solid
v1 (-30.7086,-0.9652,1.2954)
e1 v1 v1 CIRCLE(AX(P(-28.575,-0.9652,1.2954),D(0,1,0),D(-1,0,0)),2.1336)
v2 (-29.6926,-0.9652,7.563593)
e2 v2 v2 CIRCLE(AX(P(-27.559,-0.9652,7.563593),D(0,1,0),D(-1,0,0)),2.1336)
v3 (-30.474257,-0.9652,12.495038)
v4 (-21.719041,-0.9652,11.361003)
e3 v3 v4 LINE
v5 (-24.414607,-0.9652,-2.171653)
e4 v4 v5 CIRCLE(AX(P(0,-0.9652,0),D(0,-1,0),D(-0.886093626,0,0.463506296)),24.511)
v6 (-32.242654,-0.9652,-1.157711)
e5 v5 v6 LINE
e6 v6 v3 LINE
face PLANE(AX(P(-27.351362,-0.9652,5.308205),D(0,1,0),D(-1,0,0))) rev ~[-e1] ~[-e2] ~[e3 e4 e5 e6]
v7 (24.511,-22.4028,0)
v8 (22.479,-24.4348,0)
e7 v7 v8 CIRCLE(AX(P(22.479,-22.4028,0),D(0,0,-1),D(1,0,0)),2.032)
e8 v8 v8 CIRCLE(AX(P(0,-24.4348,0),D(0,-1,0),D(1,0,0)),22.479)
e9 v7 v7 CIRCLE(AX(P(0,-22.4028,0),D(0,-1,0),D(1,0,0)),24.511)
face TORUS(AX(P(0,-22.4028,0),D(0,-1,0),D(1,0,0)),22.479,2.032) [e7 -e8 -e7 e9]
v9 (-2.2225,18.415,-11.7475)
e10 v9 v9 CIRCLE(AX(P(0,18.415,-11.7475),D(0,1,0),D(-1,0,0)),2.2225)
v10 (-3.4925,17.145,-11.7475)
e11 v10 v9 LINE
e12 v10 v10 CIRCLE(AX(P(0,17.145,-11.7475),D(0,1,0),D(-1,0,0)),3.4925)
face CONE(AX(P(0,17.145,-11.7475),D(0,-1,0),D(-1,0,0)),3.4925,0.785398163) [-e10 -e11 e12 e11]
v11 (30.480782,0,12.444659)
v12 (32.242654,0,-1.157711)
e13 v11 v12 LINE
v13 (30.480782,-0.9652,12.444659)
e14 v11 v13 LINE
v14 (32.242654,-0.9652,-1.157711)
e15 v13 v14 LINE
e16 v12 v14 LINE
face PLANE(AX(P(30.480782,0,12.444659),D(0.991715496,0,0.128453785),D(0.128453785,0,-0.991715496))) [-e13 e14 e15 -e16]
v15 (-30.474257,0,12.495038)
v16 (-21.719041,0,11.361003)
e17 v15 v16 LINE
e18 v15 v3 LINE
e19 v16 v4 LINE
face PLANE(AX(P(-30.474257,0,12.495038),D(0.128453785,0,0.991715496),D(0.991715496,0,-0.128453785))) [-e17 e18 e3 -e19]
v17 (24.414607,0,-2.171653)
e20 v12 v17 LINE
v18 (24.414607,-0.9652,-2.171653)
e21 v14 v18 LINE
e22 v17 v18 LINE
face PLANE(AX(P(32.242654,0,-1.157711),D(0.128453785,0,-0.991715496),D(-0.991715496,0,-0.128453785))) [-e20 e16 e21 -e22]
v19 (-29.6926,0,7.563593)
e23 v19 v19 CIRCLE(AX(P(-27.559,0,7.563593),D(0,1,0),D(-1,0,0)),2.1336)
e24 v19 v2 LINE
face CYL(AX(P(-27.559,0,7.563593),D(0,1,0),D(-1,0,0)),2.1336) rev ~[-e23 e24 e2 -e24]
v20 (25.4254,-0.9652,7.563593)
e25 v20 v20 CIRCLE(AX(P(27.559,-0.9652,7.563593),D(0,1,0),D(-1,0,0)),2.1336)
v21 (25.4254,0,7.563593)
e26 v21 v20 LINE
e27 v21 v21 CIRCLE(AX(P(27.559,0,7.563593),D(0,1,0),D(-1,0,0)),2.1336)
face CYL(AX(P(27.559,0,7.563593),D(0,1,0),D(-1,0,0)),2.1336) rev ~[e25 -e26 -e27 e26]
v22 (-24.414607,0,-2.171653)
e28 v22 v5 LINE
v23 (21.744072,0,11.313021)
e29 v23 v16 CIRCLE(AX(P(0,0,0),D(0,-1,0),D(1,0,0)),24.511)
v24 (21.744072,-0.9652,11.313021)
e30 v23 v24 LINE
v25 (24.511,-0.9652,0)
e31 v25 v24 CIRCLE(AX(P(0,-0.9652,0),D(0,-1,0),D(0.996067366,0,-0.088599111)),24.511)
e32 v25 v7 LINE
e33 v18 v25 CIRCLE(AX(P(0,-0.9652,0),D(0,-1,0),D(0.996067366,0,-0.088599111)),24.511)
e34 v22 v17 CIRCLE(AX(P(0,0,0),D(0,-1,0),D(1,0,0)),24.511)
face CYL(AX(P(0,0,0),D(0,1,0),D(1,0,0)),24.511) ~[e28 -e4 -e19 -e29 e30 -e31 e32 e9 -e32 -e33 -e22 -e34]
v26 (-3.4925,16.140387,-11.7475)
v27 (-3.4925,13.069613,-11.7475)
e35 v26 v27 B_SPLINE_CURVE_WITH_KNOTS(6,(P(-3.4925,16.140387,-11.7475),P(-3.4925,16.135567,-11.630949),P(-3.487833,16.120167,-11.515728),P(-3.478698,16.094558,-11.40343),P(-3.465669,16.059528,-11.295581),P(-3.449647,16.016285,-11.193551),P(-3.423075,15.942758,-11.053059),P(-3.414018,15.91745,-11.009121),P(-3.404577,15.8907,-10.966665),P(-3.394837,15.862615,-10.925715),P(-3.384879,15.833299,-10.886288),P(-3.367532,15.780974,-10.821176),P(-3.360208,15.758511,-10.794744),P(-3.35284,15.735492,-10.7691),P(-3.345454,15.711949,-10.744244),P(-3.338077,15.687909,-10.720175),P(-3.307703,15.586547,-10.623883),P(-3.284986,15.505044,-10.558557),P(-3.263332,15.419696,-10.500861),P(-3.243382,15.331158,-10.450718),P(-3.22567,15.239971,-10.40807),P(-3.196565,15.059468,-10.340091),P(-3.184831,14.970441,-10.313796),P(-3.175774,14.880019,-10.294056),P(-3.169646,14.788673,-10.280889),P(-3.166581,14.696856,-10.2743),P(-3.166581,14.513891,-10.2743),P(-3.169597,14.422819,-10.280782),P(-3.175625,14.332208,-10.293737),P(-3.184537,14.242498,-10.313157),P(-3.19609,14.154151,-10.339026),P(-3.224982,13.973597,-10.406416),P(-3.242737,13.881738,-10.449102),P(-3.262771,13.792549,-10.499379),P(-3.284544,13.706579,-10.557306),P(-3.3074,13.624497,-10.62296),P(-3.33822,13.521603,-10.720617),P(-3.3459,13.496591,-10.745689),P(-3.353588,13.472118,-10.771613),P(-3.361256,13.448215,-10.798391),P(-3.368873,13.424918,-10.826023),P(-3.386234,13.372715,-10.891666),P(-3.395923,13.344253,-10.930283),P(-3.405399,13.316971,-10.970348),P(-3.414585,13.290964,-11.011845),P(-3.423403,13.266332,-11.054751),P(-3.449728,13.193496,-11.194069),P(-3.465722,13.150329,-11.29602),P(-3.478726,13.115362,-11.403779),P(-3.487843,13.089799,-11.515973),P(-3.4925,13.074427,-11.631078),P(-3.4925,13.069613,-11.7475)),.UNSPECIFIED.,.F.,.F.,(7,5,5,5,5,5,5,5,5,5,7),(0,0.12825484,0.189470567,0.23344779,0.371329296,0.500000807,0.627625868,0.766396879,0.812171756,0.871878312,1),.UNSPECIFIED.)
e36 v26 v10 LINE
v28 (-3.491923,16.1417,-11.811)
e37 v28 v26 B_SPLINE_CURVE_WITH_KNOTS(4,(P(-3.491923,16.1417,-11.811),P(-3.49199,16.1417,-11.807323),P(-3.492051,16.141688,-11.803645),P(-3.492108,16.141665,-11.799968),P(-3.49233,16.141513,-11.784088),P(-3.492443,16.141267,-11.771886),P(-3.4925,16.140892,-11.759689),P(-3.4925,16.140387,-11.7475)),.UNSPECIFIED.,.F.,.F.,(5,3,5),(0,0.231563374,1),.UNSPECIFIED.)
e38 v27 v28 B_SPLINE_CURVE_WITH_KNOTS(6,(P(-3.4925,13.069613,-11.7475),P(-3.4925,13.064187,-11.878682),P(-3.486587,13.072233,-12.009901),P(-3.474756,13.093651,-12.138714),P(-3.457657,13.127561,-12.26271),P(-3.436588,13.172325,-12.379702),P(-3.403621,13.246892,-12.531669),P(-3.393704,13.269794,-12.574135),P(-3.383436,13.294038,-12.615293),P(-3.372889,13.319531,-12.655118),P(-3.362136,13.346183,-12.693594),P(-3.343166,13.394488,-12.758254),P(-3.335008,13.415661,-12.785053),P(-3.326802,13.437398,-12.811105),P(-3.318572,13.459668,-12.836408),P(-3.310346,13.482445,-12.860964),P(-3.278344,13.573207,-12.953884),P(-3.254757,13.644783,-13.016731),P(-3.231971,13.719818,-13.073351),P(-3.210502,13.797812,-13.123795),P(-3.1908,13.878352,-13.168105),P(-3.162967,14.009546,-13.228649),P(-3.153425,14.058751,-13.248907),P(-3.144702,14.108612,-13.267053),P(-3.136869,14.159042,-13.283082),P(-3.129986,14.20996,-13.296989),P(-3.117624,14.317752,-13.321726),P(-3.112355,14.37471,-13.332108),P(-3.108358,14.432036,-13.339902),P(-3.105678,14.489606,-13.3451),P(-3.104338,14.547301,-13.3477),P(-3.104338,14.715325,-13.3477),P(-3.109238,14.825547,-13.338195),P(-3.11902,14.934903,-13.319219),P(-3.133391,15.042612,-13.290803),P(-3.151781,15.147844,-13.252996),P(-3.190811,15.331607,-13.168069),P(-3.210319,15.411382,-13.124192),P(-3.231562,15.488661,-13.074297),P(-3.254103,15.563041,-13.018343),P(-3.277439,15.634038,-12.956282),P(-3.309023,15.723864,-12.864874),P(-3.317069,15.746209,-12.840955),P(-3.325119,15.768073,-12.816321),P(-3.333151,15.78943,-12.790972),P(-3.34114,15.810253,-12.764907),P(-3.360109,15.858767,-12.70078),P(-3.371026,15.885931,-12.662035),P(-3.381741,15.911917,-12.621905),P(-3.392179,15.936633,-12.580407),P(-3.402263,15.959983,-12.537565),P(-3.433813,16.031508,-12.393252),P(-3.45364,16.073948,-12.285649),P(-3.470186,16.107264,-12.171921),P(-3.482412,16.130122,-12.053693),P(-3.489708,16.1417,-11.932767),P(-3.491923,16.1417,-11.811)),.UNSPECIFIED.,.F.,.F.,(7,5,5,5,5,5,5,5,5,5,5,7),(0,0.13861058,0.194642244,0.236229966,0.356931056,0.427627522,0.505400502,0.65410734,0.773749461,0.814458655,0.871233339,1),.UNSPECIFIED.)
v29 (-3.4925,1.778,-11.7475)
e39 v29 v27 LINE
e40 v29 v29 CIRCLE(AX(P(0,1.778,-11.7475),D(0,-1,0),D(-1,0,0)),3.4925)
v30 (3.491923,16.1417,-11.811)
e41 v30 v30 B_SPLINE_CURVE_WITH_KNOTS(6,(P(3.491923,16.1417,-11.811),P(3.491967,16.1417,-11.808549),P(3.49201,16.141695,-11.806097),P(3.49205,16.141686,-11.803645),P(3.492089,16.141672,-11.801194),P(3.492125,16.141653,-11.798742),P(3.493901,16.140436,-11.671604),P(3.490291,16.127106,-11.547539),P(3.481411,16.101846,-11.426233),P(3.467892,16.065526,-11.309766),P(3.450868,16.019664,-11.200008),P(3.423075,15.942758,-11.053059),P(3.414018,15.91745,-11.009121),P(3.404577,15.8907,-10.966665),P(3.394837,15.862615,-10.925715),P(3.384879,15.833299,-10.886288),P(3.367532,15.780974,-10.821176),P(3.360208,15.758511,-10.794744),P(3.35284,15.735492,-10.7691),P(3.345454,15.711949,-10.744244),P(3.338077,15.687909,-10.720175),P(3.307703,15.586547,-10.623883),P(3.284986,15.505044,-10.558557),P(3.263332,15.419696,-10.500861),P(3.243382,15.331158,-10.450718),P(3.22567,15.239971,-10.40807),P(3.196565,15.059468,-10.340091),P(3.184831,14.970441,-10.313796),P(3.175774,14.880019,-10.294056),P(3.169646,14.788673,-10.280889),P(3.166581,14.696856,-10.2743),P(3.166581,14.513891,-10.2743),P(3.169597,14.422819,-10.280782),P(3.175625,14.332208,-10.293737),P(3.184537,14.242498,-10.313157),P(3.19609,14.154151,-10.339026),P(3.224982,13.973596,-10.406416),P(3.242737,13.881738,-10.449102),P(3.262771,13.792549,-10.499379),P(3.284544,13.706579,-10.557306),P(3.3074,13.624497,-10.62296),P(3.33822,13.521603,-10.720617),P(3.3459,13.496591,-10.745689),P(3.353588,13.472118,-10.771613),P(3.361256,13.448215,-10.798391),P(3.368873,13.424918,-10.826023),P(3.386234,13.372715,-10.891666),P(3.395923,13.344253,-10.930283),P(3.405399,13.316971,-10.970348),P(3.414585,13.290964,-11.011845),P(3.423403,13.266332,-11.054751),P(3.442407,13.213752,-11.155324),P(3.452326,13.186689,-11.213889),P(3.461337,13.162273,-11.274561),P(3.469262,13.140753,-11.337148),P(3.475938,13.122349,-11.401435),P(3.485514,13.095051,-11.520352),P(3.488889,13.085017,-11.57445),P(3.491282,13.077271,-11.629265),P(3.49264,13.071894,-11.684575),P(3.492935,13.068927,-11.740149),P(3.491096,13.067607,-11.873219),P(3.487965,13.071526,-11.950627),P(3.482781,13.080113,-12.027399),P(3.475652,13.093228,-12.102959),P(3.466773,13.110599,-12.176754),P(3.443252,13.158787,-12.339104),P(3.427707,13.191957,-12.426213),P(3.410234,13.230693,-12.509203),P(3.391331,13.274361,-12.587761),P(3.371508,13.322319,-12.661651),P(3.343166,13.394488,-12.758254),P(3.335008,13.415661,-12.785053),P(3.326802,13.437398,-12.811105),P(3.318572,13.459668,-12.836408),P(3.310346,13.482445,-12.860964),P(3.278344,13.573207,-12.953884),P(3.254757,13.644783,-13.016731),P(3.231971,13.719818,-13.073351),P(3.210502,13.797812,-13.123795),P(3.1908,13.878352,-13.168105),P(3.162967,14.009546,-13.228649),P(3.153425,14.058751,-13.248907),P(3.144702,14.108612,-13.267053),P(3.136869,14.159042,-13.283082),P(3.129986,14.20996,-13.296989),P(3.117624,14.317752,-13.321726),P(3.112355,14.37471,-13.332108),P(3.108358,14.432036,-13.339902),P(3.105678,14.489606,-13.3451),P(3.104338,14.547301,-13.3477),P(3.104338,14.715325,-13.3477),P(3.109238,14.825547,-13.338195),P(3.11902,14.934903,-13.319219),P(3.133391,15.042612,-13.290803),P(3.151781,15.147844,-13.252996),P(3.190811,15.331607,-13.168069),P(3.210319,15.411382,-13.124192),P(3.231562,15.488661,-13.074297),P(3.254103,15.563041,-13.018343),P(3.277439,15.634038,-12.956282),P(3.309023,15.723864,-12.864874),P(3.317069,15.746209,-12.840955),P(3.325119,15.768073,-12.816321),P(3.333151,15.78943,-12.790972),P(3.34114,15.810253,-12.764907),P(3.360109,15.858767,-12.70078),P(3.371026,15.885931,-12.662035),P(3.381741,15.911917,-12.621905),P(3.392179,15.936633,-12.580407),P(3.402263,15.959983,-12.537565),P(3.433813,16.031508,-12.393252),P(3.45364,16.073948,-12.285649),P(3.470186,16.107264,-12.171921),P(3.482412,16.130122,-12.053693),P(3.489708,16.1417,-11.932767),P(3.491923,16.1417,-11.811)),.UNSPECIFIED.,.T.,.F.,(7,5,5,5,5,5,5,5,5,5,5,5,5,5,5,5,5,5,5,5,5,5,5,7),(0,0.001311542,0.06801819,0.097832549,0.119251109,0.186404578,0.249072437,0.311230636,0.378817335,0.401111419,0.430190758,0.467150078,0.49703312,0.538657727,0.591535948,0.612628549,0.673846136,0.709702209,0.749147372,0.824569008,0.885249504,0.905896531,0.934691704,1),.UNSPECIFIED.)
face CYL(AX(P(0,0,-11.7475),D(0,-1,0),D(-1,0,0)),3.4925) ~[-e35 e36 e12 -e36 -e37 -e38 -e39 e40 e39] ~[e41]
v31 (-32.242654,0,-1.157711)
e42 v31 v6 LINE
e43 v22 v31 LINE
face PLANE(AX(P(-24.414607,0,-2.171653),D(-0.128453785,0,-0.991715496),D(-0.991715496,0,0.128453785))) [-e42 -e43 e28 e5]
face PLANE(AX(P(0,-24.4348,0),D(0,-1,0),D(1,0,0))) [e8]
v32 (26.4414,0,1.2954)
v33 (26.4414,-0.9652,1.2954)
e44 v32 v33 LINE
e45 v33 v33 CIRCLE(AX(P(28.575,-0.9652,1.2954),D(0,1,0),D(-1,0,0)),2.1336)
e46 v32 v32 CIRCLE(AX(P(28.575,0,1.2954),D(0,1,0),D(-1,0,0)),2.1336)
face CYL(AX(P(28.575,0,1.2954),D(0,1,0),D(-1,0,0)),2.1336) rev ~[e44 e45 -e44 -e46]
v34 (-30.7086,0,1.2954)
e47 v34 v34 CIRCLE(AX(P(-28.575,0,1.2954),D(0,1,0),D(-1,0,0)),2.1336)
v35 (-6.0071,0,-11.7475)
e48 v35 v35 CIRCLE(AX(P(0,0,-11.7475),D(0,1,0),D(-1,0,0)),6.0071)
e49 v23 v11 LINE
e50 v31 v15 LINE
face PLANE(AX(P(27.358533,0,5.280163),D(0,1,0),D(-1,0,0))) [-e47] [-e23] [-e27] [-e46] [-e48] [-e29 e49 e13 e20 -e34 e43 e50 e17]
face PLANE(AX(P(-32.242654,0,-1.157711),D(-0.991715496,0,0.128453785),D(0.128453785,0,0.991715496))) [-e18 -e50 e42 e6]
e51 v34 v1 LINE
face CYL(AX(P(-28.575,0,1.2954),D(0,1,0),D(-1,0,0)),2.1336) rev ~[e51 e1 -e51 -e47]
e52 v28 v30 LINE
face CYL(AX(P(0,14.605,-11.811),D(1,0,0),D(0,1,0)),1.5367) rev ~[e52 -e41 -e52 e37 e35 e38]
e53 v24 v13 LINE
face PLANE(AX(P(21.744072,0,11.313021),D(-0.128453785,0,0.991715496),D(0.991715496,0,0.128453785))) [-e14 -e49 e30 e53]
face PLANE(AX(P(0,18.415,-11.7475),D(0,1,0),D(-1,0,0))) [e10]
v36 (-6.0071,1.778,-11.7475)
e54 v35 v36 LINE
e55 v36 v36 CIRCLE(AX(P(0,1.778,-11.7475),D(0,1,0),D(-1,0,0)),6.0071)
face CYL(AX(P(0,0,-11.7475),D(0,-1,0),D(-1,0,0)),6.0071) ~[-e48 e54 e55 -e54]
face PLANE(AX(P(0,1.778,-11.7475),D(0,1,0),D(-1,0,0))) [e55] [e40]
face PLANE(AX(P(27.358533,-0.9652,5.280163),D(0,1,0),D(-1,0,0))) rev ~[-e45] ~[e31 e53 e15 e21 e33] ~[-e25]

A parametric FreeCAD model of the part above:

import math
import FreeCAD as App
import Part
import Sketcher

V = App.Vector
Q = App.Units.Quantity


def edges_at(feature, points):
    """Names of the edges that pass closest to the given points."""
    edges = feature.Shape.Edges
    near = lambda p: min(range(len(edges)), key=lambda i: edges[i].distToShape(Part.Vertex(*p))[0])
    return sorted({f"Edge{near(p) + 1}" for p in points})

doc = App.newDocument("Part")
params = doc.addObject("Spreadsheet::Sheet", "Params")
for row, (alias, value) in enumerate([
    ("sketch1_diameter", "1.93 in"),
    ("pad1_length", "0.962 in"),
    ("sketch2_diameter", "0.275 in"),
    ("pad2_length", "0.725 in"),
    ("sketch3_diameter", "0.473 in"),
    ("pad3_length", "0.07 in"),
    ("chamfer_size", "0.05 in"),
    ("sketch4_diameter", "0.121 in"),
    ("pocket1_length", "1 in"),
    ("sketch5_diameter", "0.168 in"),
    ("sketch5_radius", "0.965 in"),
    ("sketch5_length", "0.54 in"),
    ("sketch5_length2", "0.542 in"),
    ("pad4_length", "0.038 in"),
    ("fillet_radius", "0.08 in"),
], start=1):
    params.set(f"A{row}", alias)
    params.set(f"B{row}", "=" + value)
    params.setAlias(f"B{row}", alias)

body = doc.addObject("PartDesign::Body", "Body")

# Sketch on XZ plane
sketch1 = body.newObject("Sketcher::SketchObject", "Sketch")
sketch1.AttachmentSupport = (doc.getObject("XZ_Plane"), [""])
sketch1.MapMode = "FlatFace"
sketch1.addGeometry(Part.Circle(V(0, 0, 0), V(0, 0, 1), 24.511), False)
sketch1.addConstraint([
    Sketcher.Constraint("Coincident", 0, 3, -1, 1),
    Sketcher.Constraint("Diameter", 0, Q("1.93 in")),
])
sketch1.setExpression("Constraints[1]", "Params.sketch1_diameter")
pad1 = body.newObject("PartDesign::Pad", "Pad")
pad1.Profile = sketch1
pad1.setExpression("Length", "Params.pad1_length")

# Sketch on XZ plane
sketch2 = body.newObject("Sketcher::SketchObject", "Sketch001")
sketch2.AttachmentSupport = (doc.getObject("XZ_Plane"), [""])
sketch2.MapMode = "FlatFace"
sketch2.addGeometry(Part.Circle(V(0, -11.7475, 0), V(0, 0, 1), 3.4925), False)
sketch2.addConstraint([
    Sketcher.Constraint("PointOnObject", 0, 3, -2),
    Sketcher.Constraint("Diameter", 0, Q("0.275 in")),
    Sketcher.Constraint("DistanceY", 0, 3, -1, 1, Q("0.4625 in")),
])
sketch2.setExpression("Constraints[1]", "Params.sketch2_diameter")
pad2 = body.newObject("PartDesign::Pad", "Pad001")
pad2.Profile = sketch2
pad2.setExpression("Length", "Params.pad2_length")
pad2.Reversed = True

# Sketch on XZ plane
sketch3 = body.newObject("Sketcher::SketchObject", "Sketch002")
sketch3.AttachmentSupport = (doc.getObject("XZ_Plane"), [""])
sketch3.MapMode = "FlatFace"
sketch3.addGeometry(Part.Circle(V(0, -11.7475, 0), V(0, 0, 1), 6.0071), False)
sketch3.addConstraint([
    Sketcher.Constraint("PointOnObject", 0, 3, -2),
    Sketcher.Constraint("Diameter", 0, Q("0.473 in")),
    Sketcher.Constraint("DistanceY", 0, 3, -1, 1, Q("0.4625 in")),
])
sketch3.setExpression("Constraints[1]", "Params.sketch3_diameter")
pad3 = body.newObject("PartDesign::Pad", "Pad002")
pad3.Profile = sketch3
pad3.setExpression("Length", "Params.pad3_length")
pad3.Reversed = True
doc.recompute()

chamfer = body.newObject("PartDesign::Chamfer", "Chamfer")
chamfer.Base = (pad3, edges_at(pad3, [(3.493, 18.415, -11.748)]))
chamfer.setExpression("Size", "Params.chamfer_size")

# Sketch on YZ plane
sketch4 = body.newObject("Sketcher::SketchObject", "Sketch003")
sketch4.AttachmentSupport = (doc.getObject("YZ_Plane"), [""])
sketch4.MapMode = "FlatFace"
sketch4.addGeometry(Part.Circle(V(14.605, -11.811, 0), V(0, 0, 1), 1.5367), False)
sketch4.addConstraint([
    Sketcher.Constraint("Diameter", 0, Q("0.121 in")),
    Sketcher.Constraint("DistanceX", -1, 1, 0, 3, Q("0.575 in")),
    Sketcher.Constraint("DistanceY", 0, 3, -1, 1, Q("0.465 in")),
])
sketch4.setExpression("Constraints[0]", "Params.sketch4_diameter")
pocket1 = body.newObject("PartDesign::Pocket", "Pocket")
pocket1.Profile = sketch4
pocket1.setExpression("Length", "Params.pocket1_length")
pocket1.Midplane = True

# Sketch on XZ plane
sketch5 = body.newObject("Sketcher::SketchObject", "Sketch004")
sketch5.AttachmentSupport = (doc.getObject("XZ_Plane"), [""])
sketch5.MapMode = "FlatFace"
sketch5.addGeometry([
    Part.ArcOfCircle(Part.Circle(V(0, 0, 0), V(0, 0, 1), 24.511), math.radians(152.386405), math.radians(185.08302)),  # 0
    Part.LineSegment(V(-24.414607, -2.171653, 0), V(-32.242654, -1.157711, 0)),  # 1
    Part.LineSegment(V(-32.242654, -1.157711, 0), V(-30.474257, 12.495038, 0)),  # 2
    Part.LineSegment(V(-30.474257, 12.495038, 0), V(-21.719041, 11.361003, 0)),  # 3
    Part.Circle(V(-28.575, 1.2954, 0), V(0, 0, 1), 2.1336),  # 4
    Part.Circle(V(-27.559, 7.563593, 0), V(0, 0, 1), 2.1336),  # 5
    Part.ArcOfCircle(Part.Circle(V(0, 0, 0), V(0, 0, 1), 24.511), math.radians(-5.08302), math.radians(27.487089)),  # 6
    Part.LineSegment(V(21.744072, 11.313021, 0), V(30.480782, 12.444659, 0)),  # 7
    Part.LineSegment(V(30.480782, 12.444659, 0), V(32.242654, -1.157711, 0)),  # 8
    Part.LineSegment(V(32.242654, -1.157711, 0), V(24.414607, -2.171653, 0)),  # 9
    Part.Circle(V(28.575, 1.2954, 0), V(0, 0, 1), 2.1336),  # 10
    Part.Circle(V(27.559, 7.563593, 0), V(0, 0, 1), 2.1336),  # 11
], False)
sketch5.addConstraint([
    Sketcher.Constraint("Coincident", 0, 2, 1, 1),
    Sketcher.Constraint("Coincident", 1, 2, 2, 1),
    Sketcher.Constraint("Coincident", 2, 2, 3, 1),
    Sketcher.Constraint("Coincident", 3, 2, 0, 1),
    Sketcher.Constraint("Coincident", 6, 2, 7, 1),
    Sketcher.Constraint("Coincident", 7, 2, 8, 1),
    Sketcher.Constraint("Coincident", 8, 2, 9, 1),
    Sketcher.Constraint("Coincident", 9, 2, 6, 1),
    Sketcher.Constraint("Coincident", 0, 3, -1, 1),
    Sketcher.Constraint("Coincident", 6, 3, -1, 1),
    Sketcher.Constraint("Equal", 4, 5),
    Sketcher.Constraint("Equal", 0, 6),
    Sketcher.Constraint("Equal", 5, 10),
    Sketcher.Constraint("Equal", 10, 11),
    Sketcher.Constraint("Symmetric", 4, 3, 10, 3, -2),
    Sketcher.Constraint("Symmetric", 5, 3, 11, 3, -2),
    Sketcher.Constraint("Symmetric", 1, 2, 8, 2, -2),
    Sketcher.Constraint("Perpendicular", 1, 2),
    Sketcher.Constraint("Perpendicular", 2, 3),
    Sketcher.Constraint("Perpendicular", 7, 8),
    Sketcher.Constraint("Perpendicular", 8, 9),
    Sketcher.Constraint("Horizontal", 0, 2, 9, 2),
    Sketcher.Constraint("Diameter", 4, Q("0.168 in")),
    Sketcher.Constraint("Radius", 0, Q("0.965 in")),
    Sketcher.Constraint("Distance", 8, Q("0.54 in")),
    Sketcher.Constraint("DistanceX", 4, 3, 5, 3, Q("0.04 in")),
    Sketcher.Constraint("DistanceX", 5, 3, 10, 3, Q("2.21 in")),
    Sketcher.Constraint("Distance", 2, Q("0.542 in")),
    Sketcher.Constraint("DistanceY", -1, 1, 4, 3, Q("0.051 in")),
    Sketcher.Constraint("Distance", 1, Q("7.89344 mm")),
    Sketcher.Constraint("DistanceY", 1, 2, -1, 1, Q("1.157711 mm")),
    Sketcher.Constraint("DistanceY", -1, 1, 2, 2, Q("12.495038 mm")),
    Sketcher.Constraint("DistanceY", 5, 3, 3, 2, Q("3.79741 mm")),
])
sketch5.setExpression("Constraints[22]", "Params.sketch5_diameter")
sketch5.setExpression("Constraints[23]", "Params.sketch5_radius")
sketch5.setExpression("Constraints[24]", "Params.sketch5_length")
sketch5.setExpression("Constraints[27]", "Params.sketch5_length2")
pad4 = body.newObject("PartDesign::Pad", "Pad003")
pad4.Profile = sketch5
pad4.setExpression("Length", "Params.pad4_length")
doc.recompute()

fillet = body.newObject("PartDesign::Fillet", "Fillet")
fillet.Base = (pad4, edges_at(pad4, [(-24.511, -24.435, 0)]))
fillet.setExpression("Radius", "Params.fillet_radius")

doc.recompute()
